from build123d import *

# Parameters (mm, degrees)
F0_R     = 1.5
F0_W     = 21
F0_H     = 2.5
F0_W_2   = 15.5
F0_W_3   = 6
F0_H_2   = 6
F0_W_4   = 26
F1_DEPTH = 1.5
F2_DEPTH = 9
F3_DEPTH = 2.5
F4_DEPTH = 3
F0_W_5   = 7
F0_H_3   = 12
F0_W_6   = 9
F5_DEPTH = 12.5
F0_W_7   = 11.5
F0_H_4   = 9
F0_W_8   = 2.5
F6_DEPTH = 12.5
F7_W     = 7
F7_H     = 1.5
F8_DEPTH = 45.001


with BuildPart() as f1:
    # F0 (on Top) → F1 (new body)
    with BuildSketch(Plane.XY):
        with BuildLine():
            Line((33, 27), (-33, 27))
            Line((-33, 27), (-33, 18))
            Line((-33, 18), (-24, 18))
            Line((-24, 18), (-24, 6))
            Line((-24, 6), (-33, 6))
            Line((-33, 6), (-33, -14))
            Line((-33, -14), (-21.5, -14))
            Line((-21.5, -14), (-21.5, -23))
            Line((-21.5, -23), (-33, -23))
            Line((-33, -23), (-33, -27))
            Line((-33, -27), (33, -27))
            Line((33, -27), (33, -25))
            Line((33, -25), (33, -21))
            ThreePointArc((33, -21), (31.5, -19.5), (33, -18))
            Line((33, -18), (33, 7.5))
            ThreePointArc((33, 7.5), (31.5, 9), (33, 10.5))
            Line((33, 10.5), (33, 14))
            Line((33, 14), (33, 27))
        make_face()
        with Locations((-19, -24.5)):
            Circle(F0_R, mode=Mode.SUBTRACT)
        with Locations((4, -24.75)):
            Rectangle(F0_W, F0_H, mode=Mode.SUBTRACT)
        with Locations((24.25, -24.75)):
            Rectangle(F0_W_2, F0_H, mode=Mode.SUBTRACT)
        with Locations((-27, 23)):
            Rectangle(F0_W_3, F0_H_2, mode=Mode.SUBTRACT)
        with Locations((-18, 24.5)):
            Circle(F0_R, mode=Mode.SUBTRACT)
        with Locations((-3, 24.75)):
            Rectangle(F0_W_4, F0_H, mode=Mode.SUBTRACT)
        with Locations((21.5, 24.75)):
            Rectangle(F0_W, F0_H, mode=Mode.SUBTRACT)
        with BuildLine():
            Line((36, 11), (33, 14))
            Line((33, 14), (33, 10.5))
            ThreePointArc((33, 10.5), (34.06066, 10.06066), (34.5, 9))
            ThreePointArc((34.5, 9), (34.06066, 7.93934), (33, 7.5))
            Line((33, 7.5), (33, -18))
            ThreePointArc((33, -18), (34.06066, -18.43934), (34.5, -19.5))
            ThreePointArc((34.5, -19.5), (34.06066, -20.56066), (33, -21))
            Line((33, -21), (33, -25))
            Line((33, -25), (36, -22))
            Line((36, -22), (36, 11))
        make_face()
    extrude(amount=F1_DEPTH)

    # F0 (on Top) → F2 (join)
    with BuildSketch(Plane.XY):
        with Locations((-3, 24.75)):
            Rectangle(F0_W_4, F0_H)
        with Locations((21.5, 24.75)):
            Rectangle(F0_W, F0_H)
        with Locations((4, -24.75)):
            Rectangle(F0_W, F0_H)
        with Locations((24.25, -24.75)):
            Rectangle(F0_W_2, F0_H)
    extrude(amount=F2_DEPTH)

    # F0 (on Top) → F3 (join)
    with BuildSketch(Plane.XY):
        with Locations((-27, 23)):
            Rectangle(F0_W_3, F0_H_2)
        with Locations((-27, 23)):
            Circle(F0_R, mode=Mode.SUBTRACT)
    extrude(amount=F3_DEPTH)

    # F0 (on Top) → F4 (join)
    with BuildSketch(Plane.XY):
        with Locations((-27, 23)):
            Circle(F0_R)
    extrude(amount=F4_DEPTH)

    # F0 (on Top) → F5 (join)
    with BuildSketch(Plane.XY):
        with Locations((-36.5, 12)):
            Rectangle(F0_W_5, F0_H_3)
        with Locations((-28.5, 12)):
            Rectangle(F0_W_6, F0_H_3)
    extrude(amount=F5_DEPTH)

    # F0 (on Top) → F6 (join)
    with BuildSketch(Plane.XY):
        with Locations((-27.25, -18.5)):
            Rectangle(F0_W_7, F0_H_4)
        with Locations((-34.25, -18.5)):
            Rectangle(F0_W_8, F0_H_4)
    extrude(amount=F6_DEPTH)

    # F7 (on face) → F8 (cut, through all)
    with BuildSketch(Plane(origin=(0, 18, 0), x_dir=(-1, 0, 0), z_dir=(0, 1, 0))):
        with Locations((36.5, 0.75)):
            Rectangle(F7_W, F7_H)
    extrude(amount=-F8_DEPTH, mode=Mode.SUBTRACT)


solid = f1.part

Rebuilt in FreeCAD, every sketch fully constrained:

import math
import FreeCAD as App
import Part
import Sketcher
from FreeCAD import Vector


def add_polygon(sketch, points):
    """Adds a closed chain of lines whose ends are joined by coincident constraints."""
    first, n = sketch.GeometryCount, len(points)
    for a, b in zip(points, points[1:] + points[:1]):
        sketch.addGeometry(Part.LineSegment(App.Vector(*a, 0), App.Vector(*b, 0)), False)
    for i in range(n):
        sketch.addConstraint(Sketcher.Constraint("Coincident", first + i, 2, first + (i + 1) % n, 1))

doc = App.newDocument("Part")
params = doc.addObject("Spreadsheet::Sheet", "Params")
for row, (alias, value) in enumerate([
    ("sketch1_diameter", "3 mm"),
    ("sketch1_width", "66 mm"),
    ("sketch1_width2", "9 mm"),
    ("sketch1_width3", "21 mm"),
    ("sketch1_width4", "6 mm"),
    ("pad1_length", "1.5 mm"),
    ("sketch2_width", "26 mm"),
    ("sketch2_width2", "21 mm"),
    ("sketch2_width3", "15.5 mm"),
    ("sketch2_height", "2.5 mm"),
    ("pad2_length", "9 mm"),
    ("sketch3_diameter", "3 mm"),
    ("sketch3_width", "6 mm"),
    ("pad3_length", "2.5 mm"),
    ("sketch4_diameter", "3 mm"),
    ("pad4_length", "3 mm"),
    ("sketch5_width", "16 mm"),
    ("sketch5_height", "12 mm"),
    ("pad5_length", "12.5 mm"),
    ("sketch6_width", "14 mm"),
    ("sketch6_height", "9 mm"),
    ("pad6_length", "12.5 mm"),
    ("sketch7_width", "7 mm"),
    ("sketch7_height", "1.5 mm"),
], start=1):
    params.set(f"A{row}", alias)
    params.set(f"B{row}", "=" + value)
    params.setAlias(f"B{row}", alias)

body = doc.addObject("PartDesign::Body", "Body")

# Sketch on XY plane
sketch1 = body.newObject("Sketcher::SketchObject", "Sketch")
sketch1.AttachmentSupport = (doc.getObject("XY_Plane"), [""])
sketch1.MapMode = "FlatFace"
add_polygon(sketch1, [(33, 27), (-33, 27), (-33, 18), (-24, 18), (-24, 6), (-33, 6), (-33, -14), (-21.5, -14), (-21.5, -23), (-33, -23), (-33, -27), (33, -27), (33, -25), (36, -22), (36, 11), (33, 14)])  # lines 0-15
sketch1.addGeometry(Part.ArcOfCircle(Part.Circle(Vector(33, 9, 0), Vector(0, 0, 1), 1.5), math.radians(90), math.radians(270)), False)  # 16
sketch1.addGeometry(Part.ArcOfCircle(Part.Circle(Vector(33, 9, 0), Vector(0, 0, 1), 1.5), math.radians(0), math.radians(90)), False)  # 17
sketch1.addGeometry(Part.ArcOfCircle(Part.Circle(Vector(33, 9, 0), Vector(0, 0, 1), 1.5), math.radians(-90), math.radians(0)), False)  # 18
sketch1.addGeometry(Part.ArcOfCircle(Part.Circle(Vector(33, -19.5, 0), Vector(0, 0, 1), 1.5), math.radians(90), math.radians(270)), False)  # 19
sketch1.addGeometry(Part.ArcOfCircle(Part.Circle(Vector(33, -19.5, 0), Vector(0, 0, 1), 1.5), math.radians(0), math.radians(90)), False)  # 20
sketch1.addGeometry(Part.ArcOfCircle(Part.Circle(Vector(33, -19.5, 0), Vector(0, 0, 1), 1.5), math.radians(-90), math.radians(0)), False)  # 21
sketch1.addGeometry(Part.Circle(Vector(-19, -24.5, 0), Vector(0, 0, 1), 1.5), False)  # 22
add_polygon(sketch1, [(14.5, -26), (-6.5, -26), (-6.5, -23.5), (14.5, -23.5)])  # lines 23-26
add_polygon(sketch1, [(32, -26), (16.5, -26), (16.5, -23.5), (32, -23.5)])  # lines 27-30
add_polygon(sketch1, [(-24, 20), (-30, 20), (-30, 26), (-24, 26)])  # lines 31-34
sketch1.addGeometry(Part.Circle(Vector(-18, 24.5, 0), Vector(0, 0, 1), 1.5), False)  # 35
add_polygon(sketch1, [(10, 23.5), (-16, 23.5), (-16, 26), (10, 26)])  # lines 36-39
add_polygon(sketch1, [(32, 23.5), (11, 23.5), (11, 26), (32, 26)])  # lines 40-43
sketch1.addConstraint(Sketcher.Constraint("Tangent", 16, 1, 17, 2))
sketch1.addConstraint(Sketcher.Constraint("Tangent", 17, 1, 18, 2))
sketch1.addConstraint(Sketcher.Constraint("Tangent", 18, 1, 16, 2))
sketch1.addConstraint(Sketcher.Constraint("Tangent", 19, 1, 20, 2))
sketch1.addConstraint(Sketcher.Constraint("Tangent", 20, 1, 21, 2))
sketch1.addConstraint(Sketcher.Constraint("Tangent", 21, 1, 19, 2))
sketch1.addConstraint(Sketcher.Constraint("Horizontal", 0))
sketch1.addConstraint(Sketcher.Constraint("Vertical", 1))
sketch1.addConstraint(Sketcher.Constraint("Horizontal", 2))
sketch1.addConstraint(Sketcher.Constraint("Vertical", 3))
sketch1.addConstraint(Sketcher.Constraint("Horizontal", 4))
sketch1.addConstraint(Sketcher.Constraint("Vertical", 5))
sketch1.addConstraint(Sketcher.Constraint("Horizontal", 6))
sketch1.addConstraint(Sketcher.Constraint("Vertical", 7))
sketch1.addConstraint(Sketcher.Constraint("Horizontal", 8))
sketch1.addConstraint(Sketcher.Constraint("Vertical", 9))
sketch1.addConstraint(Sketcher.Constraint("Horizontal", 10))
sketch1.addConstraint(Sketcher.Constraint("Vertical", 11))
sketch1.addConstraint(Sketcher.Constraint("Vertical", 13))
sketch1.addConstraint(Sketcher.Constraint("Vertical", 15))
sketch1.addConstraint(Sketcher.Constraint("Horizontal", 23))
sketch1.addConstraint(Sketcher.Constraint("Vertical", 24))
sketch1.addConstraint(Sketcher.Constraint("Horizontal", 25))
sketch1.addConstraint(Sketcher.Constraint("Vertical", 26))
sketch1.addConstraint(Sketcher.Constraint("Horizontal", 27))
sketch1.addConstraint(Sketcher.Constraint("Vertical", 28))
sketch1.addConstraint(Sketcher.Constraint("Horizontal", 29))
sketch1.addConstraint(Sketcher.Constraint("Vertical", 30))
sketch1.addConstraint(Sketcher.Constraint("Horizontal", 31))
sketch1.addConstraint(Sketcher.Constraint("Vertical", 32))
sketch1.addConstraint(Sketcher.Constraint("Horizontal", 33))
sketch1.addConstraint(Sketcher.Constraint("Vertical", 34))
sketch1.addConstraint(Sketcher.Constraint("Horizontal", 36))
sketch1.addConstraint(Sketcher.Constraint("Vertical", 37))
sketch1.addConstraint(Sketcher.Constraint("Horizontal", 38))
sketch1.addConstraint(Sketcher.Constraint("Vertical", 39))
sketch1.addConstraint(Sketcher.Constraint("Horizontal", 40))
sketch1.addConstraint(Sketcher.Constraint("Vertical", 41))
sketch1.addConstraint(Sketcher.Constraint("Horizontal", 42))
sketch1.addConstraint(Sketcher.Constraint("Vertical", 43))
sketch1.addConstraint(Sketcher.Constraint("Equal", 18, 19))
sketch1.addConstraint(Sketcher.Constraint("Equal", 21, 22))
sketch1.addConstraint(Sketcher.Constraint("Equal", 22, 35))
sketch1.addConstraint(Sketcher.Constraint("Symmetric", 0, 2, 10, 2, -1, 1))
sketch1.addConstraint(Sketcher.Constraint("Symmetric", 5, 2, 14, 2, -1, 1))
sketch1.addConstraint(Sketcher.Constraint("Symmetric", 1, 2, 19, 1, -1, 1))
sketch1.addConstraint(Sketcher.Constraint("Symmetric", 30, 2, 42, 2, -1))
sketch1.addConstraint(Sketcher.Constraint("Perpendicular", 12, 14))
sketch1.addConstraint(Sketcher.Constraint("Horizontal", 18, 3, 17, 1))
sketch1.addConstraint(Sketcher.Constraint("Horizontal", 21, 3, 20, 1))
sketch1.addConstraint(Sketcher.Constraint("Horizontal", 26, 2, 27, 2))
sketch1.addConstraint(Sketcher.Constraint("Horizontal", 25, 2, 28, 2))
sketch1.addConstraint(Sketcher.Constraint("Horizontal", 33, 2, 37, 2))
sketch1.addConstraint(Sketcher.Constraint("Horizontal", 39, 2, 40, 2))
sketch1.addConstraint(Sketcher.Constraint("Horizontal", 38, 2, 41, 2))
sketch1.addConstraint(Sketcher.Constraint("Vertical", 18, 3, 19, 3))
sketch1.addConstraint(Sketcher.Constraint("Vertical", 1, 2, 4, 2))
sketch1.addConstraint(Sketcher.Constraint("Vertical", 5, 2, 8, 2))
sketch1.addConstraint(Sketcher.Constraint("Vertical", 21, 3, 10, 2))
sketch1.addConstraint(Sketcher.Constraint("Vertical", 15, 2, 16, 1))
sketch1.addConstraint(Sketcher.Constraint("Vertical", 16, 1, 18, 1))
sketch1.addConstraint(Sketcher.Constraint("Vertical", 19, 1, 21, 1))
sketch1.addConstraint(Sketcher.Constraint("Vertical", 3, 2, 33, 2))
sketch1.addConstraint(Sketcher.Constraint("Equal", 25, 40))
sketch1.addConstraint(Sketcher.Constraint("Equal", 4, 1))
sketch1.addConstraint(Sketcher.Constraint("Equal", 1, 7))
sketch1.addConstraint(Sketcher.Constraint("Equal", 33, 32))
sketch1.addConstraint(Sketcher.Constraint("Equal", 30, 37))
sketch1.addConstraint(Sketcher.Constraint("Equal", 12, 14))
sketch1.addConstraint(Sketcher.Constraint("Diameter", 22, 3.0))
sketch1.addConstraint(Sketcher.Constraint("DistanceX", 0, 2, 0, 1, 66.0))
sketch1.addConstraint(Sketcher.Constraint("DistanceX", 2, 1, 2, 2, 9.0))
sketch1.addConstraint(Sketcher.Constraint("DistanceX", 23, 2, 23, 1, 21.0))
sketch1.addConstraint(Sketcher.Constraint("DistanceX", 31, 2, 31, 1, 6.0))
sketch1.addConstraint(Sketcher.Constraint("DistanceX", 36, 2, 36, 1, 26.0))
sketch1.addConstraint(Sketcher.Constraint("DistanceY", 3, 2, 3, 1, 12.0))
sketch1.addConstraint(Sketcher.Constraint("DistanceY", 5, 2, 5, 1, 20.0))
sketch1.addConstraint(Sketcher.Constraint("DistanceY", 9, 2, 9, 1, 4.0))
sketch1.addConstraint(Sketcher.Constraint("DistanceY", 11, 1, 11, 2, 2.0))
sketch1.addConstraint(Sketcher.Constraint("DistanceY", 13, 1, 13, 2, 33.0))
sketch1.addConstraint(Sketcher.Constraint("DistanceX", 6, 1, 6, 2, 11.5))
sketch1.addConstraint(Sketcher.Constraint("DistanceX", 27, 2, 27, 1, 15.5))
sketch1.addConstraint(Sketcher.Constraint("DistanceY", 24, 1, 24, 2, 2.5))
sketch1.addConstraint(Sketcher.Constraint("DistanceY", -1, 1, 16, 3, 9.0))
sketch1.addConstraint(Sketcher.Constraint("DistanceX", 22, 3, -1, 1, 19.0))
sketch1.addConstraint(Sketcher.Constraint("DistanceX", 35, 3, -1, 1, 18.0))
sketch1.addConstraint(Sketcher.Constraint("DistanceY", 23, 2, -1, 1, 26.0))
sketch1.addConstraint(Sketcher.Constraint("DistanceX", -1, 1, 29, 2, 32.0))
sketch1.addConstraint(Sketcher.Constraint("DistanceX", 36, 2, -1, 1, 16.0))
sketch1.addConstraint(Sketcher.Constraint("DistanceY", 22, 3, 20, 3, 4.999999))
sketch1.addConstraint(Sketcher.Constraint("DistanceY", 22, 3, 35, 3, 49.0))
sketch1.addConstraint(Sketcher.Constraint("DistanceX", 7, 2, 23, 2, 15.0))
sketch1.setExpression("Constraints[105]", "Params.sketch1_diameter")
sketch1.setExpression("Constraints[106]", "Params.sketch1_width")
sketch1.setExpression("Constraints[107]", "Params.sketch1_width2")
sketch1.setExpression("Constraints[108]", "Params.sketch1_width3")
sketch1.setExpression("Constraints[109]", "Params.sketch1_width4")
pad1 = body.newObject("PartDesign::Pad", "Pad")
pad1.Profile = sketch1
pad1.setExpression("Length", "Params.pad1_length")

# Sketch on XY plane
sketch2 = body.newObject("Sketcher::SketchObject", "Sketch001")
sketch2.AttachmentSupport = (doc.getObject("XY_Plane"), [""])
sketch2.MapMode = "FlatFace"
add_polygon(sketch2, [(-16, 26), (-16, 23.5), (10, 23.5), (10, 26)])  # lines 0-3
add_polygon(sketch2, [(11, 26), (11, 23.5), (32, 23.5), (32, 26)])  # lines 4-7
add_polygon(sketch2, [(-6.5, -23.5), (-6.5, -26), (14.5, -26), (14.5, -23.5)])  # lines 8-11
add_polygon(sketch2, [(16.5, -23.5), (16.5, -26), (32, -26), (32, -23.5)])  # lines 12-15
sketch2.addConstraint(Sketcher.Constraint("Vertical", 0))
sketch2.addConstraint(Sketcher.Constraint("Horizontal", 1))
sketch2.addConstraint(Sketcher.Constraint("Vertical", 2))
sketch2.addConstraint(Sketcher.Constraint("Horizontal", 3))
sketch2.addConstraint(Sketcher.Constraint("Vertical", 4))
sketch2.addConstraint(Sketcher.Constraint("Horizontal", 5))
sketch2.addConstraint(Sketcher.Constraint("Vertical", 6))
sketch2.addConstraint(Sketcher.Constraint("Horizontal", 7))
sketch2.addConstraint(Sketcher.Constraint("Vertical", 8))
sketch2.addConstraint(Sketcher.Constraint("Horizontal", 9))
sketch2.addConstraint(Sketcher.Constraint("Vertical", 10))
sketch2.addConstraint(Sketcher.Constraint("Horizontal", 11))
sketch2.addConstraint(Sketcher.Constraint("Vertical", 12))
sketch2.addConstraint(Sketcher.Constraint("Horizontal", 13))
sketch2.addConstraint(Sketcher.Constraint("Vertical", 14))
sketch2.addConstraint(Sketcher.Constraint("Horizontal", 15))
sketch2.addConstraint(Sketcher.Constraint("Symmetric", 6, 2, 13, 2, -1))
sketch2.addConstraint(Sketcher.Constraint("Horizontal", 1, 2, 4, 2))
sketch2.addConstraint(Sketcher.Constraint("Horizontal", 3, 2, 6, 2))
sketch2.addConstraint(Sketcher.Constraint("Horizontal", 9, 2, 12, 2))
sketch2.addConstraint(Sketcher.Constraint("Horizontal", 11, 2, 14, 2))
sketch2.addConstraint(Sketcher.Constraint("Equal", 7, 9))
sketch2.addConstraint(Sketcher.Constraint("Equal", 6, 8))
sketch2.addConstraint(Sketcher.Constraint("DistanceX", 1, 1, 1, 2, 26.0))
sketch2.addConstraint(Sketcher.Constraint("DistanceX", 5, 1, 5, 2, 21.0))
sketch2.addConstraint(Sketcher.Constraint("DistanceX", 13, 1, 13, 2, 15.5))
sketch2.addConstraint(Sketcher.Constraint("DistanceY", 0, 2, 0, 1, 2.5))
sketch2.addConstraint(Sketcher.Constraint("DistanceX", 0, 2, -1, 1, 16.0))
sketch2.addConstraint(Sketcher.Constraint("DistanceY", -1, 1, 2, 2, 26.0))
sketch2.addConstraint(Sketcher.Constraint("DistanceX", -1, 1, 4, 2, 11.0))
sketch2.addConstraint(Sketcher.Constraint("DistanceX", 9, 2, 12, 2, 2.0))
sketch2.setExpression("Constraints[39]", "Params.sketch2_width")
sketch2.setExpression("Constraints[40]", "Params.sketch2_width2")
sketch2.setExpression("Constraints[41]", "Params.sketch2_width3")
sketch2.setExpression("Constraints[42]", "Params.sketch2_height")
pad2 = body.newObject("PartDesign::Pad", "Pad001")
pad2.Profile = sketch2
pad2.setExpression("Length", "Params.pad2_length")

# Sketch on XY plane
sketch3 = body.newObject("Sketcher::SketchObject", "Sketch002")
sketch3.AttachmentSupport = (doc.getObject("XY_Plane"), [""])
sketch3.MapMode = "FlatFace"
add_polygon(sketch3, [(-30, 26), (-30, 20), (-24, 20), (-24, 26)])  # lines 0-3
sketch3.addGeometry(Part.Circle(Vector(-27, 23, 0), Vector(0, 0, 1), 1.5), False)  # 4
sketch3.addConstraint(Sketcher.Constraint("Vertical", 0))
sketch3.addConstraint(Sketcher.Constraint("Horizontal", 1))
sketch3.addConstraint(Sketcher.Constraint("Vertical", 2))
sketch3.addConstraint(Sketcher.Constraint("Horizontal", 3))
sketch3.addConstraint(Sketcher.Constraint("Equal", 3, 0))
sketch3.addConstraint(Sketcher.Constraint("Diameter", 4, 3.0))
sketch3.addConstraint(Sketcher.Constraint("DistanceX", 1, 1, 1, 2, 6.0))
sketch3.addConstraint(Sketcher.Constraint("DistanceX", 4, 3, -1, 1, 27.0))
sketch3.addConstraint(Sketcher.Constraint("DistanceY", -1, 1, 4, 3, 23.0))
sketch3.addConstraint(Sketcher.Constraint("DistanceX", 0, 2, -1, 1, 30.0))
sketch3.addConstraint(Sketcher.Constraint("DistanceY", -1, 1, 0, 2, 20.0))
sketch3.setExpression("Constraints[9]", "Params.sketch3_diameter")
sketch3.setExpression("Constraints[10]", "Params.sketch3_width")
pad3 = body.newObject("PartDesign::Pad", "Pad002")
pad3.Profile = sketch3
pad3.setExpression("Length", "Params.pad3_length")

# Sketch on XY plane
sketch4 = body.newObject("Sketcher::SketchObject", "Sketch003")
sketch4.AttachmentSupport = (doc.getObject("XY_Plane"), [""])
sketch4.MapMode = "FlatFace"
sketch4.addGeometry(Part.Circle(Vector(-27, 23, 0), Vector(0, 0, 1), 1.5), False)
sketch4.addConstraint(Sketcher.Constraint("Diameter", 0, 3.0))
sketch4.addConstraint(Sketcher.Constraint("DistanceX", 0, 3, -1, 1, 27.0))
sketch4.addConstraint(Sketcher.Constraint("DistanceY", -1, 1, 0, 3, 23.0))
sketch4.setExpression("Constraints[0]", "Params.sketch4_diameter")
pad4 = body.newObject("PartDesign::Pad", "Pad003")
pad4.Profile = sketch4
pad4.setExpression("Length", "Params.pad4_length")

# Sketch on XY plane
sketch5 = body.newObject("Sketcher::SketchObject", "Sketch004")
sketch5.AttachmentSupport = (doc.getObject("XY_Plane"), [""])
sketch5.MapMode = "FlatFace"
add_polygon(sketch5, [(-40, 18), (-40, 6), (-24, 6), (-24, 18)])  # lines 0-3
sketch5.addConstraint(Sketcher.Constraint("Vertical", 0))
sketch5.addConstraint(Sketcher.Constraint("Horizontal", 1))
sketch5.addConstraint(Sketcher.Constraint("Vertical", 2))
sketch5.addConstraint(Sketcher.Constraint("Horizontal", 3))
sketch5.addConstraint(Sketcher.Constraint("DistanceX", 1, 1, 1, 2, 16.0))
sketch5.addConstraint(Sketcher.Constraint("DistanceY", 0, 2, 0, 1, 12.0))
sketch5.addConstraint(Sketcher.Constraint("DistanceX", 0, 2, -1, 1, 40.0))
sketch5.addConstraint(Sketcher.Constraint("DistanceY", -1, 1, 0, 2, 6.0))
sketch5.setExpression("Constraints[8]", "Params.sketch5_width")
sketch5.setExpression("Constraints[9]", "Params.sketch5_height")
pad5 = body.newObject("PartDesign::Pad", "Pad004")
pad5.Profile = sketch5
pad5.setExpression("Length", "Params.pad5_length")

# Sketch on XY plane
sketch6 = body.newObject("Sketcher::SketchObject", "Sketch005")
sketch6.AttachmentSupport = (doc.getObject("XY_Plane"), [""])
sketch6.MapMode = "FlatFace"
add_polygon(sketch6, [(-22, -23), (-22, -14), (-36, -14), (-36, -23)])  # lines 0-3
sketch6.addConstraint(Sketcher.Constraint("Vertical", 0))
sketch6.addConstraint(Sketcher.Constraint("Horizontal", 1))
sketch6.addConstraint(Sketcher.Constraint("Vertical", 2))
sketch6.addConstraint(Sketcher.Constraint("Horizontal", 3))
sketch6.addConstraint(Sketcher.Constraint("DistanceX", 1, 2, 1, 1, 14.0))
sketch6.addConstraint(Sketcher.Constraint("DistanceY", 0, 1, 0, 2, 9.0))
sketch6.addConstraint(Sketcher.Constraint("DistanceY", 0, 2, -1, 1, 14.0))
sketch6.addConstraint(Sketcher.Constraint("DistanceX", 0, 2, -1, 1, 21.5))
sketch6.setExpression("Constraints[8]", "Params.sketch6_width")
sketch6.setExpression("Constraints[9]", "Params.sketch6_height")
pad6 = body.newObject("PartDesign::Pad", "Pad005")
pad6.Profile = sketch6
pad6.setExpression("Length", "Params.pad6_length")

# Sketch on XZ plane
sketch7 = body.newObject("Sketcher::SketchObject", "Sketch006")
sketch7.AttachmentSupport = (doc.getObject("XZ_Plane"), [""])
sketch7.MapMode = "FlatFace"
sketch7.AttachmentOffset = App.Placement(Vector(0, 0, -18), App.Rotation())
add_polygon(sketch7, [(-33, 1.5), (-33, 0), (-40, 0), (-40, 1.5)])  # lines 0-3
sketch7.addConstraint(Sketcher.Constraint("Vertical", 0))
sketch7.addConstraint(Sketcher.Constraint("Horizontal", 1))
sketch7.addConstraint(Sketcher.Constraint("Vertical", 2))
sketch7.addConstraint(Sketcher.Constraint("Horizontal", 3))
sketch7.addConstraint(Sketcher.Constraint("PointOnObject", 0, 2, -1))
sketch7.addConstraint(Sketcher.Constraint("DistanceX", 1, 2, 1, 1, 7.0))
sketch7.addConstraint(Sketcher.Constraint("DistanceY", 0, 2, 0, 1, 1.5))
sketch7.addConstraint(Sketcher.Constraint("DistanceX", 0, 2, -1, 1, 33.0))
sketch7.setExpression("Constraints[9]", "Params.sketch7_width")
sketch7.setExpression("Constraints[10]", "Params.sketch7_height")
pocket1 = body.newObject("PartDesign::Pocket", "Pocket")
pocket1.Profile = sketch7
pocket1.Type = "ThroughAll"
pocket1.Reversed = True

doc.recompute()
